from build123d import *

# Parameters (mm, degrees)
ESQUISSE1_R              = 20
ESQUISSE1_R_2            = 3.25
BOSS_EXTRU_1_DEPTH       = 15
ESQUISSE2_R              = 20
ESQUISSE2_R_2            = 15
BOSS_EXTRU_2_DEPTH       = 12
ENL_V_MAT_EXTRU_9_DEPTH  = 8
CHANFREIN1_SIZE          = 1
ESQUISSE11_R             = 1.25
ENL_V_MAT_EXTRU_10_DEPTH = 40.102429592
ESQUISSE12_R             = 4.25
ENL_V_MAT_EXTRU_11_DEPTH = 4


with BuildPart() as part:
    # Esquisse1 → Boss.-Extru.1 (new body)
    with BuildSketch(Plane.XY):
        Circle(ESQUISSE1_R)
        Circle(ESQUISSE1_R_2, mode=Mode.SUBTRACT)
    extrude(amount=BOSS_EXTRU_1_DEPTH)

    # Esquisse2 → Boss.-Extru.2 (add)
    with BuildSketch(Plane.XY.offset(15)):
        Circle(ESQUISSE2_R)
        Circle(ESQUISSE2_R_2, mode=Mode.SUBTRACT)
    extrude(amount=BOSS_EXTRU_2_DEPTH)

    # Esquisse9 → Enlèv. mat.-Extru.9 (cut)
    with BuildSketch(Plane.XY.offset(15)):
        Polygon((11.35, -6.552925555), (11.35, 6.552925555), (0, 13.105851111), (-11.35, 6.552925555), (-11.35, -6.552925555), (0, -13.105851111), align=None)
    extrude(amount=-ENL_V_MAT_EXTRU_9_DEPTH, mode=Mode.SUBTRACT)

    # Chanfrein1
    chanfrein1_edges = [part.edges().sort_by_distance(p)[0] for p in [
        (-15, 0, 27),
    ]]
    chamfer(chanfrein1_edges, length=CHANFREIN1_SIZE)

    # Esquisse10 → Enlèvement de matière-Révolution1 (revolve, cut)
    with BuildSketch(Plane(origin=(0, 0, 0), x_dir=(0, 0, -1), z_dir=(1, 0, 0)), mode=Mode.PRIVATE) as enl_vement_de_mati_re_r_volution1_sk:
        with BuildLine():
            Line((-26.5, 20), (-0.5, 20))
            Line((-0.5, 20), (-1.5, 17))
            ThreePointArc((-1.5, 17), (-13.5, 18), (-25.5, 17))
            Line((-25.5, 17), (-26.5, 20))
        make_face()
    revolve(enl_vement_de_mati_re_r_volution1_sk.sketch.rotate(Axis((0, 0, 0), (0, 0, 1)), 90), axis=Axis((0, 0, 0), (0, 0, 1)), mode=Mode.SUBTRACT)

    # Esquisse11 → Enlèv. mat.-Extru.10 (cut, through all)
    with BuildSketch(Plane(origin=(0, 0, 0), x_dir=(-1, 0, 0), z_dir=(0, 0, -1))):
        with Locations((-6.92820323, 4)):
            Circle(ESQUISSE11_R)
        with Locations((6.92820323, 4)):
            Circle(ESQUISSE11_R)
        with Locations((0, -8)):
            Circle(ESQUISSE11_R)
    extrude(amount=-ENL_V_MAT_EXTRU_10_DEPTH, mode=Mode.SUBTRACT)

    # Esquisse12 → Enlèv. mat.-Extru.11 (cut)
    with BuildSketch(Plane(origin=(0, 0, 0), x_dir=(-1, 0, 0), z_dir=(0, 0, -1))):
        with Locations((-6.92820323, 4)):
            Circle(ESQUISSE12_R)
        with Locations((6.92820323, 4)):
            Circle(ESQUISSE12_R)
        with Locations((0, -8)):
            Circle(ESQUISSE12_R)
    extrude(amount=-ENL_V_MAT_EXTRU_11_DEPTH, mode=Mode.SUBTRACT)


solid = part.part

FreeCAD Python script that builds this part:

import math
import FreeCAD as App
import Part
import Sketcher

V = App.Vector
Q = App.Units.Quantity


def edges_at(feature, points):
    """Names of the edges that pass closest to the given points."""
    edges = feature.Shape.Edges
    near = lambda p: min(range(len(edges)), key=lambda i: edges[i].distToShape(Part.Vertex(*p))[0])
    return sorted({f"Edge{near(p) + 1}" for p in points})

doc = App.newDocument("Part")
body = doc.addObject("PartDesign::Body", "Body")

# Sketch on XY plane
sketch1 = body.newObject("Sketcher::SketchObject", "Sketch")
sketch1.AttachmentSupport = (doc.getObject("XY_Plane"), [""])
sketch1.MapMode = "FlatFace"
sketch1.addGeometry([
    Part.Circle(V(0, 0, 0), V(0, 0, 1), 20),
    Part.Circle(V(0, 0, 0), V(0, 0, 1), 3.2),
], False)
sketch1.addConstraint([
    Sketcher.Constraint("Coincident", 0, 3, -1, 1),
    Sketcher.Constraint("Coincident", 1, 3, -1, 1),
    Sketcher.Constraint("Diameter", 0, Q("40 mm")),
    Sketcher.Constraint("Diameter", 1, Q("6.5 mm")),
])
pad1 = body.newObject("PartDesign::Pad", "Pad")
pad1.Profile = sketch1
pad1.Length = 15

# Sketch on XY plane
sketch2 = body.newObject("Sketcher::SketchObject", "Sketch001")
sketch2.AttachmentSupport = (doc.getObject("XY_Plane"), [""])
sketch2.MapMode = "FlatFace"
sketch2.AttachmentOffset = App.Placement(V(0, 0, 15), App.Rotation())
sketch2.addGeometry([
    Part.Circle(V(0, 0, 0), V(0, 0, 1), 20),
    Part.Circle(V(0, 0, 0), V(0, 0, 1), 15),
], False)
sketch2.addConstraint([
    Sketcher.Constraint("Coincident", 0, 3, -1, 1),
    Sketcher.Constraint("Coincident", 1, 3, -1, 1),
    Sketcher.Constraint("Diameter", 0, Q("40 mm")),
    Sketcher.Constraint("Diameter", 1, Q("30 mm")),
])
pad2 = body.newObject("PartDesign::Pad", "Pad001")
pad2.Profile = sketch2
pad2.Length = 12

# Sketch on XY plane
sketch3 = body.newObject("Sketcher::SketchObject", "Sketch002")
sketch3.AttachmentSupport = (doc.getObject("XY_Plane"), [""])
sketch3.MapMode = "FlatFace"
sketch3.AttachmentOffset = App.Placement(V(0, 0, 15), App.Rotation())
sketch3.addGeometry([
    Part.LineSegment(V(11, -7, 0), V(11, 7, 0)),  # 0
    Part.LineSegment(V(11, 7, 0), V(0, 13, 0)),  # 1
    Part.LineSegment(V(0, 13, 0), V(-11, 7, 0)),  # 2
    Part.LineSegment(V(-11, 7, 0), V(-11, -7, 0)),  # 3
    Part.LineSegment(V(-11, -7, 0), V(0, -13, 0)),  # 4
    Part.LineSegment(V(0, -13, 0), V(11, -7, 0)),  # 5
], False)
sketch3.addConstraint([
    Sketcher.Constraint("Coincident", 0, 2, 1, 1),
    Sketcher.Constraint("Coincident", 1, 2, 2, 1),
    Sketcher.Constraint("Coincident", 2, 2, 3, 1),
    Sketcher.Constraint("Coincident", 3, 2, 4, 1),
    Sketcher.Constraint("Coincident", 4, 2, 5, 1),
    Sketcher.Constraint("Coincident", 5, 2, 0, 1),
    Sketcher.Constraint("Vertical", 0),
    Sketcher.Constraint("Vertical", 3),
    Sketcher.Constraint("Symmetric", 0, 2, 3, 2, -1, 1),
    Sketcher.Constraint("Symmetric", 1, 2, 4, 2, -1, 1),
    Sketcher.Constraint("PointOnObject", 1, 2, -2),
    Sketcher.Constraint("Parallel", 2, 5),
    Sketcher.Constraint("Horizontal", 0, 2, 2, 2),
    Sketcher.Constraint("Angle", 1, Q("150 deg")),
    Sketcher.Constraint("DistanceX", 2, 2, 0, 2, Q("22.7 mm")),
    Sketcher.Constraint("DistanceY", 0, 1, 0, 2, Q("13.105851 mm")),
])
pocket1 = body.newObject("PartDesign::Pocket", "Pocket")
pocket1.Profile = sketch3
pocket1.Length = 8
doc.recompute()

chamfer = body.newObject("PartDesign::Chamfer", "Chamfer")
chamfer.Base = (pocket1, edges_at(pocket1, [(-15, 0, 27)]))
chamfer.Size = 1

# Sketch on YZ plane
sketch4 = body.newObject("Sketcher::SketchObject", "Sketch003")
sketch4.AttachmentSupport = (doc.getObject("YZ_Plane"), [""])
sketch4.MapMode = "FlatFace"
sketch4.addGeometry([
    Part.LineSegment(V(20, 0.5, 0), V(20, 26.5, 0)),
    Part.LineSegment(V(20, 26.5, 0), V(17, 25.5, 0)),
    Part.ArcOfCircle(Part.Circle(V(-54.5, 13.5, 0), V(0, 0, 1), 72.5), math.radians(-9.53), math.radians(9.53)),
    Part.LineSegment(V(17, 1.5, 0), V(20, 0.5, 0)),
], False)
sketch4.addConstraint([
    Sketcher.Constraint("Coincident", 0, 2, 1, 1),
    Sketcher.Constraint("Coincident", 1, 2, 2, 2),
    Sketcher.Constraint("Coincident", 2, 1, 3, 1),
    Sketcher.Constraint("Coincident", 3, 2, 0, 1),
    Sketcher.Constraint("Vertical", 0),
    Sketcher.Constraint("Vertical", 1, 2, 2, 1),
    Sketcher.Constraint("Equal", 1, 3),
    Sketcher.Constraint("Radius", 2, Q("72.5 mm")),
    Sketcher.Constraint("DistanceY", 0, 1, 0, 2, Q("26 mm")),
    Sketcher.Constraint("DistanceX", -1, 1, 0, 2, Q("20 mm")),
    Sketcher.Constraint("DistanceX", -1, 1, 1, 2, Q("17 mm")),
    Sketcher.Constraint("DistanceY", 1, 2, 0, 2, Q("1 mm")),
    Sketcher.Constraint("DistanceY", -1, 1, 2, 3, Q("13.5 mm")),
])
groove = body.newObject("PartDesign::Groove", "Groove")
groove.Profile = sketch4
groove.ReferenceAxis = (sketch4, ["V_Axis"])
groove.Angle = 360

# Sketch on XY plane
sketch5 = body.newObject("Sketcher::SketchObject", "Sketch004")
sketch5.AttachmentSupport = (doc.getObject("XY_Plane"), [""])
sketch5.MapMode = "FlatFace"
sketch5.addGeometry([
    Part.Circle(V(6.9, 4, 0), V(0, 0, 1), 1.2),
    Part.Circle(V(-6.9, 4, 0), V(0, 0, 1), 1.2),
    Part.Circle(V(0, -8, 0), V(0, 0, 1), 1.2),
], False)
sketch5.addConstraint([
    Sketcher.Constraint("Equal", 0, 1),
    Sketcher.Constraint("Equal", 1, 2),
    Sketcher.Constraint("Symmetric", 0, 3, 1, 3, -2),
    Sketcher.Constraint("PointOnObject", 2, 3, -2),
    Sketcher.Constraint("Diameter", 0, Q("2.5 mm")),
    Sketcher.Constraint("DistanceY", -1, 1, 0, 3, Q("4 mm")),
    Sketcher.Constraint("DistanceY", 2, 3, -1, 1, Q("8 mm")),
    Sketcher.Constraint("DistanceX", -1, 1, 0, 3, Q("6.928203 mm")),
])
pocket2 = body.newObject("PartDesign::Pocket", "Pocket001")
pocket2.Profile = sketch5
pocket2.Type = "ThroughAll"
pocket2.Reversed = True

# Sketch on XY plane
sketch6 = body.newObject("Sketcher::SketchObject", "Sketch005")
sketch6.AttachmentSupport = (doc.getObject("XY_Plane"), [""])
sketch6.MapMode = "FlatFace"
sketch6.addGeometry([
    Part.Circle(V(6.9, 4, 0), V(0, 0, 1), 4.2),
    Part.Circle(V(-6.9, 4, 0), V(0, 0, 1), 4.2),
    Part.Circle(V(0, -8, 0), V(0, 0, 1), 4.2),
], False)
sketch6.addConstraint([
    Sketcher.Constraint("Equal", 0, 1),
    Sketcher.Constraint("Equal", 1, 2),
    Sketcher.Constraint("Symmetric", 0, 3, 1, 3, -2),
    Sketcher.Constraint("PointOnObject", 2, 3, -2),
    Sketcher.Constraint("Diameter", 0, Q("8.5 mm")),
    Sketcher.Constraint("DistanceY", -1, 1, 0, 3, Q("4 mm")),
    Sketcher.Constraint("DistanceY", 2, 3, -1, 1, Q("8 mm")),
    Sketcher.Constraint("DistanceX", -1, 1, 0, 3, Q("6.928203 mm")),
])
pocket3 = body.newObject("PartDesign::Pocket", "Pocket002")
pocket3.Profile = sketch6
pocket3.Length = 4
pocket3.Reversed = True

doc.recompute()
